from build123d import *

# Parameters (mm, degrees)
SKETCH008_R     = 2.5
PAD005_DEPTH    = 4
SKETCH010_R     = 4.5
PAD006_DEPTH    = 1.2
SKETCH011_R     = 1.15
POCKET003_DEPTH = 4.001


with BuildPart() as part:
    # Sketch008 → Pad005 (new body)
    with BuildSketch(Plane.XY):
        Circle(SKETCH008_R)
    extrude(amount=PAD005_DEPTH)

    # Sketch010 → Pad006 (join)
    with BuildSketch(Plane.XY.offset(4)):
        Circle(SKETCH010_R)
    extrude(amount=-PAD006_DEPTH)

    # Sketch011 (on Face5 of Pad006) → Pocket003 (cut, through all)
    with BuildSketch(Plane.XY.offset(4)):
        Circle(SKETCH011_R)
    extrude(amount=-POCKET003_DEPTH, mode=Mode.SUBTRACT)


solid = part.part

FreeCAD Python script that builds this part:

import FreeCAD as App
import Part
import Sketcher

doc = App.newDocument("Part")
body = doc.addObject("PartDesign::Body", "Body")

sketch1 = body.newObject("Sketcher::SketchObject", "Sketch")
sketch1.AttachmentSupport = (doc.getObject("XY_Plane"), [""])
sketch1.MapMode = "FlatFace"
sketch1.addGeometry(Part.Circle(App.Vector(0, 0, 0), App.Vector(0, 0, 1), 2.5), False)
sketch1.addConstraint(Sketcher.Constraint("Coincident", 0, 3, -1, 1))
sketch1.addConstraint(Sketcher.Constraint("Diameter", 0, 5.0))
pad1 = body.newObject("PartDesign::Pad", "Pad")
pad1.Profile = sketch1
pad1.Length = 4

sketch2 = body.newObject("Sketcher::SketchObject", "Sketch001")
sketch2.AttachmentSupport = (doc.getObject("XY_Plane"), [""])
sketch2.MapMode = "FlatFace"
sketch2.AttachmentOffset = App.Placement(App.Vector(0, 0, 4), App.Rotation())
sketch2.addGeometry(Part.Circle(App.Vector(0, 0, 0), App.Vector(0, 0, 1), 4.5), False)
sketch2.addConstraint(Sketcher.Constraint("Coincident", 0, 3, -1, 1))
sketch2.addConstraint(Sketcher.Constraint("Diameter", 0, 9.0))
pad2 = body.newObject("PartDesign::Pad", "Pad001")
pad2.Profile = sketch2
pad2.Length = 1.2
pad2.Reversed = True

sketch3 = body.newObject("Sketcher::SketchObject", "Sketch002")
sketch3.AttachmentSupport = (doc.getObject("XY_Plane"), [""])
sketch3.MapMode = "FlatFace"
sketch3.AttachmentOffset = App.Placement(App.Vector(0, 0, 4), App.Rotation())
sketch3.addGeometry(Part.Circle(App.Vector(0, 0, 0), App.Vector(0, 0, 1), 1.1), False)
sketch3.addConstraint(Sketcher.Constraint("Coincident", 0, 3, -1, 1))
sketch3.addConstraint(Sketcher.Constraint("Diameter", 0, 2.3))
pocket1 = body.newObject("PartDesign::Pocket", "Pocket")
pocket1.Profile = sketch3
pocket1.Type = "ThroughAll"

doc.recompute()
